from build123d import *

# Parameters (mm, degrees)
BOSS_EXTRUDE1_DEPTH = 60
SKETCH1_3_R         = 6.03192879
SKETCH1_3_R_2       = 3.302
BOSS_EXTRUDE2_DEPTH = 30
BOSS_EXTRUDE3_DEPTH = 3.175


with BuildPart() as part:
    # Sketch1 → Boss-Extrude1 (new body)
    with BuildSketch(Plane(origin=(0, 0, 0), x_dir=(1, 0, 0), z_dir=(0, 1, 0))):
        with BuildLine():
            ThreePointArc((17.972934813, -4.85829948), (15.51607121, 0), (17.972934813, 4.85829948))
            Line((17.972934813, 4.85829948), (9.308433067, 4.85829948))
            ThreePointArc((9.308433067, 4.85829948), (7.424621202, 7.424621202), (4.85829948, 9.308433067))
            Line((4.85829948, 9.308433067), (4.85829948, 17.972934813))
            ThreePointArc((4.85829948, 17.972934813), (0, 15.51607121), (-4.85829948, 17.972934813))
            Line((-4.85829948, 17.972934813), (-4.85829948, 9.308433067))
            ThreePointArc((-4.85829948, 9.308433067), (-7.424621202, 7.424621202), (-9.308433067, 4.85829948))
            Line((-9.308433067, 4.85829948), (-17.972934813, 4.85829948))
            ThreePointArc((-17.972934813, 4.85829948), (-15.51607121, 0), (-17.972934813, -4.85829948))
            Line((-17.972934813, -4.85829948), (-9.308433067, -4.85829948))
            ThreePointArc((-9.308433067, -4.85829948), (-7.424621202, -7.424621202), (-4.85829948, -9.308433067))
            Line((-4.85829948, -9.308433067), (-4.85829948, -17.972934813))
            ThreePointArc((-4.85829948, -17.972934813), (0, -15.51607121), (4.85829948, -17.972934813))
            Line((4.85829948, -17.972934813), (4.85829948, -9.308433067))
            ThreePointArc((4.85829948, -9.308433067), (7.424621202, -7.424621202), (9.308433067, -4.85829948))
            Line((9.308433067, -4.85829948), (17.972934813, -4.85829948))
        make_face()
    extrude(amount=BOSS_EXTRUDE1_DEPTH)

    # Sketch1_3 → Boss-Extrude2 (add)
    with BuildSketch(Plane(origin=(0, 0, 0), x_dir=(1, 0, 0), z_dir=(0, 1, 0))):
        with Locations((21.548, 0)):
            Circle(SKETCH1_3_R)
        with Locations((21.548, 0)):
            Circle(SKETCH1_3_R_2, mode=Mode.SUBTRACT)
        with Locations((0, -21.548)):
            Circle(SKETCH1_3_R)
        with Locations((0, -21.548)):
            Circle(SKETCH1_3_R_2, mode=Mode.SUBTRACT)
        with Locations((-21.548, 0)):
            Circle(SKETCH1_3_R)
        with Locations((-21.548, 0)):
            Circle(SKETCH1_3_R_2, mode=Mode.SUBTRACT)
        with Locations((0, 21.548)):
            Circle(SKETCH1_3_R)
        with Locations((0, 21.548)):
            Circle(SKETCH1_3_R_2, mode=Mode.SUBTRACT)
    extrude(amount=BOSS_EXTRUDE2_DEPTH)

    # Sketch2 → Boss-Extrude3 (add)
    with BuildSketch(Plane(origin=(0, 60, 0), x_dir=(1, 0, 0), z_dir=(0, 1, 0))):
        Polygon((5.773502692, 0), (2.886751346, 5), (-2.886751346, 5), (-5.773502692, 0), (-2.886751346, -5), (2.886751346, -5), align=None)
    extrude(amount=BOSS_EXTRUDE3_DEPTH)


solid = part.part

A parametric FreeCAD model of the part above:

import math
import FreeCAD as App
import Part
import Sketcher

V = App.Vector
Q = App.Units.Quantity


def add_polygon(sketch, points):
    """Adds a closed chain of lines whose ends are joined by coincident constraints."""
    first, n = sketch.GeometryCount, len(points)
    for a, b in zip(points, points[1:] + points[:1]):
        sketch.addGeometry(Part.LineSegment(App.Vector(*a, 0), App.Vector(*b, 0)), False)
    for i in range(n):
        sketch.addConstraint(Sketcher.Constraint("Coincident", first + i, 2, first + (i + 1) % n, 1))

doc = App.newDocument("Part")
body = doc.addObject("PartDesign::Body", "Body")

# Sketch on XZ plane
sketch1 = doc.addObject("Sketcher::SketchObject", "Sketch")
body.addObject(sketch1)
sketch1.AttachmentSupport = (doc.XZ_Plane, [""])
sketch1.MapMode = "FlatFace"
sketch1.addGeometry(Part.ArcOfCircle(Part.Circle(V(22, 0, 0), V(0, 0, 1), 6), math.radians(126), math.radians(234)), False)
sketch1.addGeometry(Part.LineSegment(V(18, -5, 0), V(9, -5, 0)), False)
sketch1.addGeometry(Part.ArcOfCircle(Part.Circle(V(0, 0, 0), V(0, 0, 1), 11), math.radians(-62), math.radians(-28)), False)
sketch1.addGeometry(Part.LineSegment(V(5, -9, 0), V(5, -18, 0)), False)
sketch1.addGeometry(Part.ArcOfCircle(Part.Circle(V(0, -22, 0), V(0, 0, 1), 6), math.radians(36), math.radians(144)), False)
sketch1.addGeometry(Part.LineSegment(V(-5, -18, 0), V(-5, -9, 0)), False)
sketch1.addGeometry(Part.ArcOfCircle(Part.Circle(V(0, 0, 0), V(0, 0, 1), 11), math.radians(-152), math.radians(-118)), False)
sketch1.addGeometry(Part.LineSegment(V(-9, -5, 0), V(-18, -5, 0)), False)
sketch1.addGeometry(Part.ArcOfCircle(Part.Circle(V(-22, 0, 0), V(0, 0, 1), 6), math.radians(-54), math.radians(54)), False)
sketch1.addGeometry(Part.LineSegment(V(-18, 5, 0), V(-9, 5, 0)), False)
sketch1.addGeometry(Part.ArcOfCircle(Part.Circle(V(0, 0, 0), V(0, 0, 1), 11), math.radians(118), math.radians(152)), False)
sketch1.addGeometry(Part.LineSegment(V(-5, 9, 0), V(-5, 18, 0)), False)
sketch1.addGeometry(Part.ArcOfCircle(Part.Circle(V(0, 22, 0), V(0, 0, 1), 6), math.radians(-144), math.radians(-36)), False)
sketch1.addGeometry(Part.LineSegment(V(5, 18, 0), V(5, 9, 0)), False)
sketch1.addGeometry(Part.ArcOfCircle(Part.Circle(V(0, 0, 0), V(0, 0, 1), 11), math.radians(28), math.radians(62)), False)
sketch1.addGeometry(Part.LineSegment(V(9, 5, 0), V(18, 5, 0)), False)
sketch1.addConstraint(Sketcher.Constraint("Coincident", 0, 2, 1, 1))
sketch1.addConstraint(Sketcher.Constraint("Coincident", 1, 2, 2, 2))
sketch1.addConstraint(Sketcher.Constraint("Coincident", 2, 1, 3, 1))
sketch1.addConstraint(Sketcher.Constraint("Coincident", 3, 2, 4, 1))
sketch1.addConstraint(Sketcher.Constraint("Coincident", 4, 2, 5, 1))
sketch1.addConstraint(Sketcher.Constraint("Coincident", 5, 2, 6, 2))
sketch1.addConstraint(Sketcher.Constraint("Coincident", 6, 1, 7, 1))
sketch1.addConstraint(Sketcher.Constraint("Coincident", 7, 2, 8, 1))
sketch1.addConstraint(Sketcher.Constraint("Coincident", 8, 2, 9, 1))
sketch1.addConstraint(Sketcher.Constraint("Coincident", 9, 2, 10, 2))
sketch1.addConstraint(Sketcher.Constraint("Coincident", 10, 1, 11, 1))
sketch1.addConstraint(Sketcher.Constraint("Coincident", 11, 2, 12, 1))
sketch1.addConstraint(Sketcher.Constraint("Coincident", 12, 2, 13, 1))
sketch1.addConstraint(Sketcher.Constraint("Coincident", 13, 2, 14, 2))
sketch1.addConstraint(Sketcher.Constraint("Coincident", 14, 1, 15, 1))
sketch1.addConstraint(Sketcher.Constraint("Coincident", 15, 2, 0, 1))
sketch1.addConstraint(Sketcher.Constraint("Horizontal", 1))
sketch1.addConstraint(Sketcher.Constraint("Vertical", 3))
sketch1.addConstraint(Sketcher.Constraint("Vertical", 5))
sketch1.addConstraint(Sketcher.Constraint("Horizontal", 7))
sketch1.addConstraint(Sketcher.Constraint("Horizontal", 9))
sketch1.addConstraint(Sketcher.Constraint("Vertical", 11))
sketch1.addConstraint(Sketcher.Constraint("Vertical", 13))
sketch1.addConstraint(Sketcher.Constraint("Horizontal", 15))
sketch1.addConstraint(Sketcher.Constraint("Coincident", 2, 3, -1, 1))
sketch1.addConstraint(Sketcher.Constraint("Coincident", 6, 3, -1, 1))
sketch1.addConstraint(Sketcher.Constraint("Coincident", 10, 3, -1, 1))
sketch1.addConstraint(Sketcher.Constraint("Coincident", 14, 3, -1, 1))
sketch1.addConstraint(Sketcher.Constraint("Equal", 0, 4))
sketch1.addConstraint(Sketcher.Constraint("Equal", 2, 6))
sketch1.addConstraint(Sketcher.Constraint("Equal", 4, 8))
sketch1.addConstraint(Sketcher.Constraint("Equal", 6, 10))
sketch1.addConstraint(Sketcher.Constraint("Equal", 8, 12))
sketch1.addConstraint(Sketcher.Constraint("Equal", 10, 14))
sketch1.addConstraint(Sketcher.Constraint("Symmetric", 0, 3, 8, 3, -1, 1))
sketch1.addConstraint(Sketcher.Constraint("Symmetric", 4, 3, 12, 3, -1, 1))
sketch1.addConstraint(Sketcher.Constraint("Symmetric", 3, 2, 4, 2, -2))
sketch1.addConstraint(Sketcher.Constraint("Symmetric", 0, 2, 7, 2, -2))
sketch1.addConstraint(Sketcher.Constraint("Horizontal", 11, 2, 12, 2))
sketch1.addConstraint(Sketcher.Constraint("Horizontal", 9, 2, 14, 1))
sketch1.addConstraint(Sketcher.Constraint("Vertical", 7, 2, 8, 2))
sketch1.addConstraint(Sketcher.Constraint("Vertical", 5, 2, 10, 1))
sketch1.addConstraint(Sketcher.Constraint("Equal", 15, 3))
sketch1.addConstraint(Sketcher.Constraint("Radius", 2, 10.5))
sketch1.addConstraint(Sketcher.Constraint("Radius", 0, 6.031929))
sketch1.addConstraint(Sketcher.Constraint("DistanceX", 1, 2, 1, 1, 8.664502))
sketch1.addConstraint(Sketcher.Constraint("DistanceX", -1, 1, 0, 3, 21.548))
sketch1.addConstraint(Sketcher.Constraint("DistanceY", 4, 3, -1, 1, 21.548))
pad1 = doc.addObject("PartDesign::Pad", "Pad")
body.addObject(pad1)
pad1.Profile = sketch1
pad1.Length = 60
pad1.Reversed = True

# Sketch on XZ plane
sketch2 = doc.addObject("Sketcher::SketchObject", "Sketch001")
body.addObject(sketch2)
sketch2.AttachmentSupport = (doc.XZ_Plane, [""])
sketch2.MapMode = "FlatFace"
sketch2.addGeometry(Part.Circle(V(21.5, 0, 0), V(0, 0, 1), 6), False)
sketch2.addGeometry(Part.Circle(V(21.5, 0, 0), V(0, 0, 1), 3.3), False)
sketch2.addGeometry(Part.Circle(V(0, 21.5, 0), V(0, 0, 1), 6), False)
sketch2.addGeometry(Part.Circle(V(0, 21.5, 0), V(0, 0, 1), 3.3), False)
sketch2.addGeometry(Part.Circle(V(-21.5, 0, 0), V(0, 0, 1), 6), False)
sketch2.addGeometry(Part.Circle(V(-21.5, 0, 0), V(0, 0, 1), 3.3), False)
sketch2.addGeometry(Part.Circle(V(0, -21.5, 0), V(0, 0, 1), 6), False)
sketch2.addGeometry(Part.Circle(V(0, -21.5, 0), V(0, 0, 1), 3.3), False)
sketch2.addConstraint(Sketcher.Constraint("Coincident", 1, 3, 0, 3))
sketch2.addConstraint(Sketcher.Constraint("Coincident", 3, 3, 2, 3))
sketch2.addConstraint(Sketcher.Constraint("Coincident", 5, 3, 4, 3))
sketch2.addConstraint(Sketcher.Constraint("Coincident", 7, 3, 6, 3))
sketch2.addConstraint(Sketcher.Constraint("Equal", 0, 2))
sketch2.addConstraint(Sketcher.Constraint("Equal", 1, 3))
sketch2.addConstraint(Sketcher.Constraint("Equal", 2, 4))
sketch2.addConstraint(Sketcher.Constraint("Equal", 3, 5))
sketch2.addConstraint(Sketcher.Constraint("Equal", 4, 6))
sketch2.addConstraint(Sketcher.Constraint("Equal", 5, 7))
sketch2.addConstraint(Sketcher.Constraint("Symmetric", 0, 3, 4, 3, -1, 1))
sketch2.addConstraint(Sketcher.Constraint("Symmetric", 2, 3, 6, 3, -1, 1))
sketch2.addConstraint(Sketcher.Constraint("PointOnObject", 0, 3, -1))
sketch2.addConstraint(Sketcher.Constraint("PointOnObject", 2, 3, -2))
sketch2.addConstraint(Sketcher.Constraint("Diameter", 1, 6.604))
sketch2.addConstraint(Sketcher.Constraint("Diameter", 0, 12.063858))
sketch2.addConstraint(Sketcher.Constraint("DistanceX", -1, 1, 0, 3, 21.548))
sketch2.addConstraint(Sketcher.Constraint("DistanceY", -1, 1, 2, 3, 21.548))
pad2 = doc.addObject("PartDesign::Pad", "Pad001")
body.addObject(pad2)
pad2.Profile = sketch2
pad2.Length = 30
pad2.Reversed = True

# Sketch on XZ plane
sketch3 = doc.addObject("Sketcher::SketchObject", "Sketch002")
body.addObject(sketch3)
sketch3.AttachmentSupport = (doc.XZ_Plane, [""])
sketch3.MapMode = "FlatFace"
sketch3.AttachmentOffset = App.Placement(V(0, 0, -60), App.Rotation())
add_polygon(sketch3, [(6, 0), (3, -5), (-3, -5), (-6, 0), (-3, 5), (3, 5)])  # lines 0-5
sketch3.addConstraint(Sketcher.Constraint("Horizontal", 1))
sketch3.addConstraint(Sketcher.Constraint("Horizontal", 4))
sketch3.addConstraint(Sketcher.Constraint("Symmetric", 0, 2, 3, 2, -1, 1))
sketch3.addConstraint(Sketcher.Constraint("Symmetric", 2, 2, 5, 2, -1, 1))
sketch3.addConstraint(Sketcher.Constraint("PointOnObject", 2, 2, -1))
sketch3.addConstraint(Sketcher.Constraint("Parallel", 2, 5))
sketch3.addConstraint(Sketcher.Constraint("Vertical", 1, 2, 3, 2))
sketch3.addConstraint(Sketcher.Constraint("Angle", 0, Q("-120 deg")))
sketch3.addConstraint(Sketcher.Constraint("DistanceY", 0, 2, -1, 1, 5.0))
sketch3.addConstraint(Sketcher.Constraint("DistanceX", 1, 2, 1, 1, 5.773503))
pad3 = doc.addObject("PartDesign::Pad", "Pad002")
body.addObject(pad3)
pad3.Profile = sketch3
pad3.Length = 3.175
pad3.Reversed = True

doc.recompute()
